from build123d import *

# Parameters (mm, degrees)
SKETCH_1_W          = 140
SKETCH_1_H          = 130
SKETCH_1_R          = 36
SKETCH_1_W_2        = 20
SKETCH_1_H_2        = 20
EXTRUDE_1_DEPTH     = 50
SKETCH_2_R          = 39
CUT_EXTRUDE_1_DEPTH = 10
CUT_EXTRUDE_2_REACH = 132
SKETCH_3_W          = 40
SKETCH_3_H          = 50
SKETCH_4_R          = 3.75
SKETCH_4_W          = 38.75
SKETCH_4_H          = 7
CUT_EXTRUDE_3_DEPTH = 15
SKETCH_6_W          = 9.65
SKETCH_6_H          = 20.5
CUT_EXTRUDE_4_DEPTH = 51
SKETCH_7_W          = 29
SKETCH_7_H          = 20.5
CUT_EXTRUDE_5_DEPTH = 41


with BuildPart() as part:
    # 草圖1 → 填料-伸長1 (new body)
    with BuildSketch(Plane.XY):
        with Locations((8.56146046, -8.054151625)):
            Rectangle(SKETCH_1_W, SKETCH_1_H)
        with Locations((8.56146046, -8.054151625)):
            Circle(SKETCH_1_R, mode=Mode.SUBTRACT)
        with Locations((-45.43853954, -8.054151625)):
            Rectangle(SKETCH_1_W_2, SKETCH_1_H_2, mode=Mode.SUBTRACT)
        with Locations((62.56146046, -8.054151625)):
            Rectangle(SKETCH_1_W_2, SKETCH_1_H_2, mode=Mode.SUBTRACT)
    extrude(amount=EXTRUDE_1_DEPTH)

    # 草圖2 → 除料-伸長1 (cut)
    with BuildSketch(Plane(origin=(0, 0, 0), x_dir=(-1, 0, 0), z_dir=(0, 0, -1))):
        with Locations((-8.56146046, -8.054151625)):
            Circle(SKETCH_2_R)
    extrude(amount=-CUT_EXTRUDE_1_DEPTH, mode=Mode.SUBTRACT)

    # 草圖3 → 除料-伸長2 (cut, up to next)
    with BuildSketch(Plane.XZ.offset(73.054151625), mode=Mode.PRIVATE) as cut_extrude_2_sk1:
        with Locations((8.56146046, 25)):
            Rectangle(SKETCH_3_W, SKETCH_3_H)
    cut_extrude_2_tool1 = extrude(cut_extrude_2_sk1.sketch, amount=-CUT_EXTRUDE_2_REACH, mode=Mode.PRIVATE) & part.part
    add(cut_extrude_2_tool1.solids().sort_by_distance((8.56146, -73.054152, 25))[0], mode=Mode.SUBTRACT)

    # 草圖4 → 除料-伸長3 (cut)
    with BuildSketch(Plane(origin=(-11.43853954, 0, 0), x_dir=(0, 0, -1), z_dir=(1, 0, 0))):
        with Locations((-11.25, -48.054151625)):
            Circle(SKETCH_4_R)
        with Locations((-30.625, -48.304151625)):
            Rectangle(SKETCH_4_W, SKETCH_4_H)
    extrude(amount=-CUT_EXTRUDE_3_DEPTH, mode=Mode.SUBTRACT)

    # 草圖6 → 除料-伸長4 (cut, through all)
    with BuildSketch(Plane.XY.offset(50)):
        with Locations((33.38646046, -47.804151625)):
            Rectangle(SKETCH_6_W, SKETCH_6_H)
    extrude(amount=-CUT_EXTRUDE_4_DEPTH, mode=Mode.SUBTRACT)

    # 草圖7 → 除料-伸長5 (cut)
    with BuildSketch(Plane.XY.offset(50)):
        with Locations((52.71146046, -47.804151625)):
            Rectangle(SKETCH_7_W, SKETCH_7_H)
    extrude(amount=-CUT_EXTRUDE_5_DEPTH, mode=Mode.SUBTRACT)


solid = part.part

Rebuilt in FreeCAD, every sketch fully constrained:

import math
import FreeCAD as App
import Part
import Sketcher
from FreeCAD import Vector


def add_polygon(sketch, points):
    """Adds a closed chain of lines whose ends are joined by coincident constraints."""
    first, n = sketch.GeometryCount, len(points)
    for a, b in zip(points, points[1:] + points[:1]):
        sketch.addGeometry(Part.LineSegment(App.Vector(*a, 0), App.Vector(*b, 0)), False)
    for i in range(n):
        sketch.addConstraint(Sketcher.Constraint("Coincident", first + i, 2, first + (i + 1) % n, 1))

doc = App.newDocument("Part")
params = doc.addObject("Spreadsheet::Sheet", "Params")
for row, (alias, value) in enumerate([
    ("sketch1_diameter", "72 mm"),
    ("sketch1_width", "140 mm"),
    ("sketch1_width2", "20 mm"),
    ("sketch1_height", "130 mm"),
    ("pad1_length", "50 mm"),
    ("sketch2_diameter", "78 mm"),
    ("pocket1_length", "10 mm"),
    ("sketch3_width", "40 mm"),
    ("sketch3_height", "50 mm"),
    ("pocket2_length", "35.066741 mm"),
    ("sketch4_width", "7 mm"),
    ("sketch4_radius", "3.75 mm"),
    ("sketch4_height", "38.75 mm"),
    ("pocket3_length", "15 mm"),
    ("sketch5_height", "20.5 mm"),
    ("sketch5_width", "9.65 mm"),
    ("sketch6_width", "29 mm"),
    ("sketch6_height", "20.5 mm"),
    ("pocket5_length", "41 mm"),
], start=1):
    params.set(f"A{row}", alias)
    params.set(f"B{row}", "=" + value)
    params.setAlias(f"B{row}", alias)

body = doc.addObject("PartDesign::Body", "Body")

sketch1 = doc.addObject("Sketcher::SketchObject", "Sketch")
body.addObject(sketch1)
sketch1.AttachmentSupport = (doc.XY_Plane, [""])
sketch1.MapMode = "FlatFace"
add_polygon(sketch1, [(-61, 57), (-61, -73), (79, -73), (79, 57)])
add_polygon(sketch1, [(-35, -18), (-55, -18), (-55, 2), (-35, 2)])
sketch1.addGeometry(Part.Circle(Vector(9, -8, 0), Vector(0, 0, 1), 36), False)
add_polygon(sketch1, [(73, -18), (53, -18), (53, 2), (73, 2)])
sketch1.addConstraint(Sketcher.Constraint("Vertical", 0))
sketch1.addConstraint(Sketcher.Constraint("Horizontal", 1))
sketch1.addConstraint(Sketcher.Constraint("Vertical", 2))
sketch1.addConstraint(Sketcher.Constraint("Horizontal", 3))
sketch1.addConstraint(Sketcher.Constraint("Horizontal", 4))
sketch1.addConstraint(Sketcher.Constraint("Vertical", 5))
sketch1.addConstraint(Sketcher.Constraint("Horizontal", 6))
sketch1.addConstraint(Sketcher.Constraint("Vertical", 7))
sketch1.addConstraint(Sketcher.Constraint("Horizontal", 9))
sketch1.addConstraint(Sketcher.Constraint("Vertical", 10))
sketch1.addConstraint(Sketcher.Constraint("Horizontal", 11))
sketch1.addConstraint(Sketcher.Constraint("Vertical", 12))
sketch1.addConstraint(Sketcher.Constraint("Horizontal", 7, 2, 9, 2))
sketch1.addConstraint(Sketcher.Constraint("Horizontal", 6, 2, 10, 2))
sketch1.addConstraint(Sketcher.Constraint("Equal", 6, 9))
sketch1.addConstraint(Sketcher.Constraint("Equal", 11, 5))
sketch1.addConstraint(Sketcher.Constraint("Diameter", 8, 72.0))
sketch1.addConstraint(Sketcher.Constraint("DistanceX", 1, 1, 1, 2, 140.0))
sketch1.addConstraint(Sketcher.Constraint("DistanceX", 4, 2, 4, 1, 20.0))
sketch1.addConstraint(Sketcher.Constraint("DistanceY", 0, 2, 0, 1, 130.0))
sketch1.addConstraint(Sketcher.Constraint("DistanceX", 0, 2, 8, 3, 70.0))
sketch1.addConstraint(Sketcher.Constraint("DistanceY", 0, 2, 8, 3, 65.0))
sketch1.addConstraint(Sketcher.Constraint("DistanceX", 0, 2, 4, 2, 6.0))
sketch1.addConstraint(Sketcher.Constraint("DistanceY", 0, 2, 4, 2, 55.0))
sketch1.addConstraint(Sketcher.Constraint("DistanceX", 8, 3, 9, 2, 44.0))
sketch1.addConstraint(Sketcher.Constraint("DistanceX", -1, 1, 8, 3, 8.56146))
sketch1.addConstraint(Sketcher.Constraint("DistanceY", 8, 3, -1, 1, 8.054152))
sketch1.setExpression("Constraints[28]", "Params.sketch1_diameter")
sketch1.setExpression("Constraints[29]", "Params.sketch1_width")
sketch1.setExpression("Constraints[30]", "Params.sketch1_width2")
sketch1.setExpression("Constraints[31]", "Params.sketch1_height")
pad1 = doc.addObject("PartDesign::Pad", "Pad")
body.addObject(pad1)
pad1.Profile = sketch1
pad1.setExpression("Length", "Params.pad1_length")

sketch2 = doc.addObject("Sketcher::SketchObject", "Sketch001")
body.addObject(sketch2)
sketch2.AttachmentSupport = (doc.XY_Plane, [""])
sketch2.MapMode = "FlatFace"
sketch2.addGeometry(Part.Circle(Vector(9, -8, 0), Vector(0, 0, 1), 39), False)
sketch2.addConstraint(Sketcher.Constraint("Diameter", 0, 78.0))
sketch2.addConstraint(Sketcher.Constraint("DistanceX", -1, 1, 0, 3, 8.56146))
sketch2.addConstraint(Sketcher.Constraint("DistanceY", 0, 3, -1, 1, 8.054152))
sketch2.setExpression("Constraints[0]", "Params.sketch2_diameter")
pocket1 = doc.addObject("PartDesign::Pocket", "Pocket")
body.addObject(pocket1)
pocket1.Profile = sketch2
pocket1.setExpression("Length", "Params.pocket1_length")
pocket1.Reversed = True

sketch3 = doc.addObject("Sketcher::SketchObject", "Sketch002")
body.addObject(sketch3)
sketch3.AttachmentSupport = (doc.XZ_Plane, [""])
sketch3.MapMode = "FlatFace"
sketch3.AttachmentOffset = App.Placement(Vector(0, 0, 73.054152), App.Rotation())
add_polygon(sketch3, [(-11, 50), (-11, 0), (29, 0), (29, 50)])
sketch3.addConstraint(Sketcher.Constraint("Vertical", 0))
sketch3.addConstraint(Sketcher.Constraint("Horizontal", 1))
sketch3.addConstraint(Sketcher.Constraint("Vertical", 2))
sketch3.addConstraint(Sketcher.Constraint("Horizontal", 3))
sketch3.addConstraint(Sketcher.Constraint("PointOnObject", 0, 2, -1))
sketch3.addConstraint(Sketcher.Constraint("DistanceX", 1, 1, 1, 2, 40.0))
sketch3.addConstraint(Sketcher.Constraint("DistanceY", 0, 2, 0, 1, 50.0))
sketch3.addConstraint(Sketcher.Constraint("DistanceX", 0, 2, -1, 1, 11.43854))
sketch3.setExpression("Constraints[9]", "Params.sketch3_width")
sketch3.setExpression("Constraints[10]", "Params.sketch3_height")
pocket2 = doc.addObject("PartDesign::Pocket", "Pocket001")
body.addObject(pocket2)
pocket2.Profile = sketch3
pocket2.setExpression("Length", "Params.pocket2_length")

sketch4 = doc.addObject("Sketcher::SketchObject", "Sketch003")
body.addObject(sketch4)
sketch4.AttachmentSupport = (doc.YZ_Plane, [""])
sketch4.MapMode = "FlatFace"
sketch4.AttachmentOffset = App.Placement(Vector(0, 0, -11.43854), App.Rotation())
sketch4.addGeometry(Part.LineSegment(Vector(-44.8, 13.1, 0), Vector(-44.8, 50, 0)), False)
sketch4.addGeometry(Part.LineSegment(Vector(-44.8, 50, 0), Vector(-51.8, 50, 0)), False)
sketch4.addGeometry(Part.LineSegment(Vector(-51.8, 50, 0), Vector(-51.8, 11.2, 0)), False)
sketch4.addGeometry(Part.ArcOfCircle(Part.Circle(Vector(-48.1, 11.2, 0), Vector(0, 0, 1), 3.8), math.radians(180), math.radians(390)), False)
sketch4.addConstraint(Sketcher.Constraint("Coincident", 0, 2, 1, 1))
sketch4.addConstraint(Sketcher.Constraint("Coincident", 1, 2, 2, 1))
sketch4.addConstraint(Sketcher.Constraint("Tangent", 2, 2, 3, 1))
sketch4.addConstraint(Sketcher.Constraint("Coincident", 3, 2, 0, 1))
sketch4.addConstraint(Sketcher.Constraint("Vertical", 0))
sketch4.addConstraint(Sketcher.Constraint("Horizontal", 1))
sketch4.addConstraint(Sketcher.Constraint("Vertical", 2))
sketch4.addConstraint(Sketcher.Constraint("DistanceX", 1, 2, 1, 1, 7.0))
sketch4.addConstraint(Sketcher.Constraint("Radius", 3, 3.75))
sketch4.addConstraint(Sketcher.Constraint("DistanceY", -1, 1, 0, 2, 50.0))
sketch4.addConstraint(Sketcher.Constraint("DistanceY", 2, 2, 2, 1, 38.75))
sketch4.addConstraint(Sketcher.Constraint("DistanceX", 3, 3, -1, 1, 48.054152))
sketch4.setExpression("Constraints[7]", "Params.sketch4_width")
sketch4.setExpression("Constraints[8]", "Params.sketch4_radius")
sketch4.setExpression("Constraints[10]", "Params.sketch4_height")
pocket3 = doc.addObject("PartDesign::Pocket", "Pocket002")
body.addObject(pocket3)
pocket3.Profile = sketch4
pocket3.setExpression("Length", "Params.pocket3_length")

sketch5 = doc.addObject("Sketcher::SketchObject", "Sketch004")
body.addObject(sketch5)
sketch5.AttachmentSupport = (doc.XY_Plane, [""])
sketch5.MapMode = "FlatFace"
sketch5.AttachmentOffset = App.Placement(Vector(0, 0, 50), App.Rotation())
add_polygon(sketch5, [(29, -38), (29, -58), (38, -58), (38, -38)])
sketch5.addConstraint(Sketcher.Constraint("Vertical", 0))
sketch5.addConstraint(Sketcher.Constraint("Horizontal", 1))
sketch5.addConstraint(Sketcher.Constraint("Vertical", 2))
sketch5.addConstraint(Sketcher.Constraint("Horizontal", 3))
sketch5.addConstraint(Sketcher.Constraint("DistanceY", 0, 2, 0, 1, 20.5))
sketch5.addConstraint(Sketcher.Constraint("DistanceX", 1, 1, 1, 2, 9.65))
sketch5.addConstraint(Sketcher.Constraint("DistanceX", -1, 1, 0, 2, 28.56146))
sketch5.addConstraint(Sketcher.Constraint("DistanceY", 0, 2, -1, 1, 58.054152))
sketch5.setExpression("Constraints[8]", "Params.sketch5_height")
sketch5.setExpression("Constraints[9]", "Params.sketch5_width")
pocket4 = doc.addObject("PartDesign::Pocket", "Pocket003")
body.addObject(pocket4)
pocket4.Profile = sketch5
pocket4.Type = "ThroughAll"

sketch6 = doc.addObject("Sketcher::SketchObject", "Sketch005")
body.addObject(sketch6)
sketch6.AttachmentSupport = (doc.XY_Plane, [""])
sketch6.MapMode = "FlatFace"
sketch6.AttachmentOffset = App.Placement(Vector(0, 0, 50), App.Rotation())
add_polygon(sketch6, [(38, -38), (38, -58), (67, -58), (67, -38)])
sketch6.addConstraint(Sketcher.Constraint("Vertical", 0))
sketch6.addConstraint(Sketcher.Constraint("Horizontal", 1))
sketch6.addConstraint(Sketcher.Constraint("Vertical", 2))
sketch6.addConstraint(Sketcher.Constraint("Horizontal", 3))
sketch6.addConstraint(Sketcher.Constraint("DistanceX", 1, 1, 1, 2, 29.0))
sketch6.addConstraint(Sketcher.Constraint("DistanceY", 0, 2, 0, 1, 20.5))
sketch6.addConstraint(Sketcher.Constraint("DistanceX", -1, 1, 0, 2, 38.21146))
sketch6.addConstraint(Sketcher.Constraint("DistanceY", 0, 2, -1, 1, 58.054152))
sketch6.setExpression("Constraints[8]", "Params.sketch6_width")
sketch6.setExpression("Constraints[9]", "Params.sketch6_height")
pocket5 = doc.addObject("PartDesign::Pocket", "Pocket004")
body.addObject(pocket5)
pocket5.Profile = sketch6
pocket5.setExpression("Length", "Params.pocket5_length")

doc.recompute()
